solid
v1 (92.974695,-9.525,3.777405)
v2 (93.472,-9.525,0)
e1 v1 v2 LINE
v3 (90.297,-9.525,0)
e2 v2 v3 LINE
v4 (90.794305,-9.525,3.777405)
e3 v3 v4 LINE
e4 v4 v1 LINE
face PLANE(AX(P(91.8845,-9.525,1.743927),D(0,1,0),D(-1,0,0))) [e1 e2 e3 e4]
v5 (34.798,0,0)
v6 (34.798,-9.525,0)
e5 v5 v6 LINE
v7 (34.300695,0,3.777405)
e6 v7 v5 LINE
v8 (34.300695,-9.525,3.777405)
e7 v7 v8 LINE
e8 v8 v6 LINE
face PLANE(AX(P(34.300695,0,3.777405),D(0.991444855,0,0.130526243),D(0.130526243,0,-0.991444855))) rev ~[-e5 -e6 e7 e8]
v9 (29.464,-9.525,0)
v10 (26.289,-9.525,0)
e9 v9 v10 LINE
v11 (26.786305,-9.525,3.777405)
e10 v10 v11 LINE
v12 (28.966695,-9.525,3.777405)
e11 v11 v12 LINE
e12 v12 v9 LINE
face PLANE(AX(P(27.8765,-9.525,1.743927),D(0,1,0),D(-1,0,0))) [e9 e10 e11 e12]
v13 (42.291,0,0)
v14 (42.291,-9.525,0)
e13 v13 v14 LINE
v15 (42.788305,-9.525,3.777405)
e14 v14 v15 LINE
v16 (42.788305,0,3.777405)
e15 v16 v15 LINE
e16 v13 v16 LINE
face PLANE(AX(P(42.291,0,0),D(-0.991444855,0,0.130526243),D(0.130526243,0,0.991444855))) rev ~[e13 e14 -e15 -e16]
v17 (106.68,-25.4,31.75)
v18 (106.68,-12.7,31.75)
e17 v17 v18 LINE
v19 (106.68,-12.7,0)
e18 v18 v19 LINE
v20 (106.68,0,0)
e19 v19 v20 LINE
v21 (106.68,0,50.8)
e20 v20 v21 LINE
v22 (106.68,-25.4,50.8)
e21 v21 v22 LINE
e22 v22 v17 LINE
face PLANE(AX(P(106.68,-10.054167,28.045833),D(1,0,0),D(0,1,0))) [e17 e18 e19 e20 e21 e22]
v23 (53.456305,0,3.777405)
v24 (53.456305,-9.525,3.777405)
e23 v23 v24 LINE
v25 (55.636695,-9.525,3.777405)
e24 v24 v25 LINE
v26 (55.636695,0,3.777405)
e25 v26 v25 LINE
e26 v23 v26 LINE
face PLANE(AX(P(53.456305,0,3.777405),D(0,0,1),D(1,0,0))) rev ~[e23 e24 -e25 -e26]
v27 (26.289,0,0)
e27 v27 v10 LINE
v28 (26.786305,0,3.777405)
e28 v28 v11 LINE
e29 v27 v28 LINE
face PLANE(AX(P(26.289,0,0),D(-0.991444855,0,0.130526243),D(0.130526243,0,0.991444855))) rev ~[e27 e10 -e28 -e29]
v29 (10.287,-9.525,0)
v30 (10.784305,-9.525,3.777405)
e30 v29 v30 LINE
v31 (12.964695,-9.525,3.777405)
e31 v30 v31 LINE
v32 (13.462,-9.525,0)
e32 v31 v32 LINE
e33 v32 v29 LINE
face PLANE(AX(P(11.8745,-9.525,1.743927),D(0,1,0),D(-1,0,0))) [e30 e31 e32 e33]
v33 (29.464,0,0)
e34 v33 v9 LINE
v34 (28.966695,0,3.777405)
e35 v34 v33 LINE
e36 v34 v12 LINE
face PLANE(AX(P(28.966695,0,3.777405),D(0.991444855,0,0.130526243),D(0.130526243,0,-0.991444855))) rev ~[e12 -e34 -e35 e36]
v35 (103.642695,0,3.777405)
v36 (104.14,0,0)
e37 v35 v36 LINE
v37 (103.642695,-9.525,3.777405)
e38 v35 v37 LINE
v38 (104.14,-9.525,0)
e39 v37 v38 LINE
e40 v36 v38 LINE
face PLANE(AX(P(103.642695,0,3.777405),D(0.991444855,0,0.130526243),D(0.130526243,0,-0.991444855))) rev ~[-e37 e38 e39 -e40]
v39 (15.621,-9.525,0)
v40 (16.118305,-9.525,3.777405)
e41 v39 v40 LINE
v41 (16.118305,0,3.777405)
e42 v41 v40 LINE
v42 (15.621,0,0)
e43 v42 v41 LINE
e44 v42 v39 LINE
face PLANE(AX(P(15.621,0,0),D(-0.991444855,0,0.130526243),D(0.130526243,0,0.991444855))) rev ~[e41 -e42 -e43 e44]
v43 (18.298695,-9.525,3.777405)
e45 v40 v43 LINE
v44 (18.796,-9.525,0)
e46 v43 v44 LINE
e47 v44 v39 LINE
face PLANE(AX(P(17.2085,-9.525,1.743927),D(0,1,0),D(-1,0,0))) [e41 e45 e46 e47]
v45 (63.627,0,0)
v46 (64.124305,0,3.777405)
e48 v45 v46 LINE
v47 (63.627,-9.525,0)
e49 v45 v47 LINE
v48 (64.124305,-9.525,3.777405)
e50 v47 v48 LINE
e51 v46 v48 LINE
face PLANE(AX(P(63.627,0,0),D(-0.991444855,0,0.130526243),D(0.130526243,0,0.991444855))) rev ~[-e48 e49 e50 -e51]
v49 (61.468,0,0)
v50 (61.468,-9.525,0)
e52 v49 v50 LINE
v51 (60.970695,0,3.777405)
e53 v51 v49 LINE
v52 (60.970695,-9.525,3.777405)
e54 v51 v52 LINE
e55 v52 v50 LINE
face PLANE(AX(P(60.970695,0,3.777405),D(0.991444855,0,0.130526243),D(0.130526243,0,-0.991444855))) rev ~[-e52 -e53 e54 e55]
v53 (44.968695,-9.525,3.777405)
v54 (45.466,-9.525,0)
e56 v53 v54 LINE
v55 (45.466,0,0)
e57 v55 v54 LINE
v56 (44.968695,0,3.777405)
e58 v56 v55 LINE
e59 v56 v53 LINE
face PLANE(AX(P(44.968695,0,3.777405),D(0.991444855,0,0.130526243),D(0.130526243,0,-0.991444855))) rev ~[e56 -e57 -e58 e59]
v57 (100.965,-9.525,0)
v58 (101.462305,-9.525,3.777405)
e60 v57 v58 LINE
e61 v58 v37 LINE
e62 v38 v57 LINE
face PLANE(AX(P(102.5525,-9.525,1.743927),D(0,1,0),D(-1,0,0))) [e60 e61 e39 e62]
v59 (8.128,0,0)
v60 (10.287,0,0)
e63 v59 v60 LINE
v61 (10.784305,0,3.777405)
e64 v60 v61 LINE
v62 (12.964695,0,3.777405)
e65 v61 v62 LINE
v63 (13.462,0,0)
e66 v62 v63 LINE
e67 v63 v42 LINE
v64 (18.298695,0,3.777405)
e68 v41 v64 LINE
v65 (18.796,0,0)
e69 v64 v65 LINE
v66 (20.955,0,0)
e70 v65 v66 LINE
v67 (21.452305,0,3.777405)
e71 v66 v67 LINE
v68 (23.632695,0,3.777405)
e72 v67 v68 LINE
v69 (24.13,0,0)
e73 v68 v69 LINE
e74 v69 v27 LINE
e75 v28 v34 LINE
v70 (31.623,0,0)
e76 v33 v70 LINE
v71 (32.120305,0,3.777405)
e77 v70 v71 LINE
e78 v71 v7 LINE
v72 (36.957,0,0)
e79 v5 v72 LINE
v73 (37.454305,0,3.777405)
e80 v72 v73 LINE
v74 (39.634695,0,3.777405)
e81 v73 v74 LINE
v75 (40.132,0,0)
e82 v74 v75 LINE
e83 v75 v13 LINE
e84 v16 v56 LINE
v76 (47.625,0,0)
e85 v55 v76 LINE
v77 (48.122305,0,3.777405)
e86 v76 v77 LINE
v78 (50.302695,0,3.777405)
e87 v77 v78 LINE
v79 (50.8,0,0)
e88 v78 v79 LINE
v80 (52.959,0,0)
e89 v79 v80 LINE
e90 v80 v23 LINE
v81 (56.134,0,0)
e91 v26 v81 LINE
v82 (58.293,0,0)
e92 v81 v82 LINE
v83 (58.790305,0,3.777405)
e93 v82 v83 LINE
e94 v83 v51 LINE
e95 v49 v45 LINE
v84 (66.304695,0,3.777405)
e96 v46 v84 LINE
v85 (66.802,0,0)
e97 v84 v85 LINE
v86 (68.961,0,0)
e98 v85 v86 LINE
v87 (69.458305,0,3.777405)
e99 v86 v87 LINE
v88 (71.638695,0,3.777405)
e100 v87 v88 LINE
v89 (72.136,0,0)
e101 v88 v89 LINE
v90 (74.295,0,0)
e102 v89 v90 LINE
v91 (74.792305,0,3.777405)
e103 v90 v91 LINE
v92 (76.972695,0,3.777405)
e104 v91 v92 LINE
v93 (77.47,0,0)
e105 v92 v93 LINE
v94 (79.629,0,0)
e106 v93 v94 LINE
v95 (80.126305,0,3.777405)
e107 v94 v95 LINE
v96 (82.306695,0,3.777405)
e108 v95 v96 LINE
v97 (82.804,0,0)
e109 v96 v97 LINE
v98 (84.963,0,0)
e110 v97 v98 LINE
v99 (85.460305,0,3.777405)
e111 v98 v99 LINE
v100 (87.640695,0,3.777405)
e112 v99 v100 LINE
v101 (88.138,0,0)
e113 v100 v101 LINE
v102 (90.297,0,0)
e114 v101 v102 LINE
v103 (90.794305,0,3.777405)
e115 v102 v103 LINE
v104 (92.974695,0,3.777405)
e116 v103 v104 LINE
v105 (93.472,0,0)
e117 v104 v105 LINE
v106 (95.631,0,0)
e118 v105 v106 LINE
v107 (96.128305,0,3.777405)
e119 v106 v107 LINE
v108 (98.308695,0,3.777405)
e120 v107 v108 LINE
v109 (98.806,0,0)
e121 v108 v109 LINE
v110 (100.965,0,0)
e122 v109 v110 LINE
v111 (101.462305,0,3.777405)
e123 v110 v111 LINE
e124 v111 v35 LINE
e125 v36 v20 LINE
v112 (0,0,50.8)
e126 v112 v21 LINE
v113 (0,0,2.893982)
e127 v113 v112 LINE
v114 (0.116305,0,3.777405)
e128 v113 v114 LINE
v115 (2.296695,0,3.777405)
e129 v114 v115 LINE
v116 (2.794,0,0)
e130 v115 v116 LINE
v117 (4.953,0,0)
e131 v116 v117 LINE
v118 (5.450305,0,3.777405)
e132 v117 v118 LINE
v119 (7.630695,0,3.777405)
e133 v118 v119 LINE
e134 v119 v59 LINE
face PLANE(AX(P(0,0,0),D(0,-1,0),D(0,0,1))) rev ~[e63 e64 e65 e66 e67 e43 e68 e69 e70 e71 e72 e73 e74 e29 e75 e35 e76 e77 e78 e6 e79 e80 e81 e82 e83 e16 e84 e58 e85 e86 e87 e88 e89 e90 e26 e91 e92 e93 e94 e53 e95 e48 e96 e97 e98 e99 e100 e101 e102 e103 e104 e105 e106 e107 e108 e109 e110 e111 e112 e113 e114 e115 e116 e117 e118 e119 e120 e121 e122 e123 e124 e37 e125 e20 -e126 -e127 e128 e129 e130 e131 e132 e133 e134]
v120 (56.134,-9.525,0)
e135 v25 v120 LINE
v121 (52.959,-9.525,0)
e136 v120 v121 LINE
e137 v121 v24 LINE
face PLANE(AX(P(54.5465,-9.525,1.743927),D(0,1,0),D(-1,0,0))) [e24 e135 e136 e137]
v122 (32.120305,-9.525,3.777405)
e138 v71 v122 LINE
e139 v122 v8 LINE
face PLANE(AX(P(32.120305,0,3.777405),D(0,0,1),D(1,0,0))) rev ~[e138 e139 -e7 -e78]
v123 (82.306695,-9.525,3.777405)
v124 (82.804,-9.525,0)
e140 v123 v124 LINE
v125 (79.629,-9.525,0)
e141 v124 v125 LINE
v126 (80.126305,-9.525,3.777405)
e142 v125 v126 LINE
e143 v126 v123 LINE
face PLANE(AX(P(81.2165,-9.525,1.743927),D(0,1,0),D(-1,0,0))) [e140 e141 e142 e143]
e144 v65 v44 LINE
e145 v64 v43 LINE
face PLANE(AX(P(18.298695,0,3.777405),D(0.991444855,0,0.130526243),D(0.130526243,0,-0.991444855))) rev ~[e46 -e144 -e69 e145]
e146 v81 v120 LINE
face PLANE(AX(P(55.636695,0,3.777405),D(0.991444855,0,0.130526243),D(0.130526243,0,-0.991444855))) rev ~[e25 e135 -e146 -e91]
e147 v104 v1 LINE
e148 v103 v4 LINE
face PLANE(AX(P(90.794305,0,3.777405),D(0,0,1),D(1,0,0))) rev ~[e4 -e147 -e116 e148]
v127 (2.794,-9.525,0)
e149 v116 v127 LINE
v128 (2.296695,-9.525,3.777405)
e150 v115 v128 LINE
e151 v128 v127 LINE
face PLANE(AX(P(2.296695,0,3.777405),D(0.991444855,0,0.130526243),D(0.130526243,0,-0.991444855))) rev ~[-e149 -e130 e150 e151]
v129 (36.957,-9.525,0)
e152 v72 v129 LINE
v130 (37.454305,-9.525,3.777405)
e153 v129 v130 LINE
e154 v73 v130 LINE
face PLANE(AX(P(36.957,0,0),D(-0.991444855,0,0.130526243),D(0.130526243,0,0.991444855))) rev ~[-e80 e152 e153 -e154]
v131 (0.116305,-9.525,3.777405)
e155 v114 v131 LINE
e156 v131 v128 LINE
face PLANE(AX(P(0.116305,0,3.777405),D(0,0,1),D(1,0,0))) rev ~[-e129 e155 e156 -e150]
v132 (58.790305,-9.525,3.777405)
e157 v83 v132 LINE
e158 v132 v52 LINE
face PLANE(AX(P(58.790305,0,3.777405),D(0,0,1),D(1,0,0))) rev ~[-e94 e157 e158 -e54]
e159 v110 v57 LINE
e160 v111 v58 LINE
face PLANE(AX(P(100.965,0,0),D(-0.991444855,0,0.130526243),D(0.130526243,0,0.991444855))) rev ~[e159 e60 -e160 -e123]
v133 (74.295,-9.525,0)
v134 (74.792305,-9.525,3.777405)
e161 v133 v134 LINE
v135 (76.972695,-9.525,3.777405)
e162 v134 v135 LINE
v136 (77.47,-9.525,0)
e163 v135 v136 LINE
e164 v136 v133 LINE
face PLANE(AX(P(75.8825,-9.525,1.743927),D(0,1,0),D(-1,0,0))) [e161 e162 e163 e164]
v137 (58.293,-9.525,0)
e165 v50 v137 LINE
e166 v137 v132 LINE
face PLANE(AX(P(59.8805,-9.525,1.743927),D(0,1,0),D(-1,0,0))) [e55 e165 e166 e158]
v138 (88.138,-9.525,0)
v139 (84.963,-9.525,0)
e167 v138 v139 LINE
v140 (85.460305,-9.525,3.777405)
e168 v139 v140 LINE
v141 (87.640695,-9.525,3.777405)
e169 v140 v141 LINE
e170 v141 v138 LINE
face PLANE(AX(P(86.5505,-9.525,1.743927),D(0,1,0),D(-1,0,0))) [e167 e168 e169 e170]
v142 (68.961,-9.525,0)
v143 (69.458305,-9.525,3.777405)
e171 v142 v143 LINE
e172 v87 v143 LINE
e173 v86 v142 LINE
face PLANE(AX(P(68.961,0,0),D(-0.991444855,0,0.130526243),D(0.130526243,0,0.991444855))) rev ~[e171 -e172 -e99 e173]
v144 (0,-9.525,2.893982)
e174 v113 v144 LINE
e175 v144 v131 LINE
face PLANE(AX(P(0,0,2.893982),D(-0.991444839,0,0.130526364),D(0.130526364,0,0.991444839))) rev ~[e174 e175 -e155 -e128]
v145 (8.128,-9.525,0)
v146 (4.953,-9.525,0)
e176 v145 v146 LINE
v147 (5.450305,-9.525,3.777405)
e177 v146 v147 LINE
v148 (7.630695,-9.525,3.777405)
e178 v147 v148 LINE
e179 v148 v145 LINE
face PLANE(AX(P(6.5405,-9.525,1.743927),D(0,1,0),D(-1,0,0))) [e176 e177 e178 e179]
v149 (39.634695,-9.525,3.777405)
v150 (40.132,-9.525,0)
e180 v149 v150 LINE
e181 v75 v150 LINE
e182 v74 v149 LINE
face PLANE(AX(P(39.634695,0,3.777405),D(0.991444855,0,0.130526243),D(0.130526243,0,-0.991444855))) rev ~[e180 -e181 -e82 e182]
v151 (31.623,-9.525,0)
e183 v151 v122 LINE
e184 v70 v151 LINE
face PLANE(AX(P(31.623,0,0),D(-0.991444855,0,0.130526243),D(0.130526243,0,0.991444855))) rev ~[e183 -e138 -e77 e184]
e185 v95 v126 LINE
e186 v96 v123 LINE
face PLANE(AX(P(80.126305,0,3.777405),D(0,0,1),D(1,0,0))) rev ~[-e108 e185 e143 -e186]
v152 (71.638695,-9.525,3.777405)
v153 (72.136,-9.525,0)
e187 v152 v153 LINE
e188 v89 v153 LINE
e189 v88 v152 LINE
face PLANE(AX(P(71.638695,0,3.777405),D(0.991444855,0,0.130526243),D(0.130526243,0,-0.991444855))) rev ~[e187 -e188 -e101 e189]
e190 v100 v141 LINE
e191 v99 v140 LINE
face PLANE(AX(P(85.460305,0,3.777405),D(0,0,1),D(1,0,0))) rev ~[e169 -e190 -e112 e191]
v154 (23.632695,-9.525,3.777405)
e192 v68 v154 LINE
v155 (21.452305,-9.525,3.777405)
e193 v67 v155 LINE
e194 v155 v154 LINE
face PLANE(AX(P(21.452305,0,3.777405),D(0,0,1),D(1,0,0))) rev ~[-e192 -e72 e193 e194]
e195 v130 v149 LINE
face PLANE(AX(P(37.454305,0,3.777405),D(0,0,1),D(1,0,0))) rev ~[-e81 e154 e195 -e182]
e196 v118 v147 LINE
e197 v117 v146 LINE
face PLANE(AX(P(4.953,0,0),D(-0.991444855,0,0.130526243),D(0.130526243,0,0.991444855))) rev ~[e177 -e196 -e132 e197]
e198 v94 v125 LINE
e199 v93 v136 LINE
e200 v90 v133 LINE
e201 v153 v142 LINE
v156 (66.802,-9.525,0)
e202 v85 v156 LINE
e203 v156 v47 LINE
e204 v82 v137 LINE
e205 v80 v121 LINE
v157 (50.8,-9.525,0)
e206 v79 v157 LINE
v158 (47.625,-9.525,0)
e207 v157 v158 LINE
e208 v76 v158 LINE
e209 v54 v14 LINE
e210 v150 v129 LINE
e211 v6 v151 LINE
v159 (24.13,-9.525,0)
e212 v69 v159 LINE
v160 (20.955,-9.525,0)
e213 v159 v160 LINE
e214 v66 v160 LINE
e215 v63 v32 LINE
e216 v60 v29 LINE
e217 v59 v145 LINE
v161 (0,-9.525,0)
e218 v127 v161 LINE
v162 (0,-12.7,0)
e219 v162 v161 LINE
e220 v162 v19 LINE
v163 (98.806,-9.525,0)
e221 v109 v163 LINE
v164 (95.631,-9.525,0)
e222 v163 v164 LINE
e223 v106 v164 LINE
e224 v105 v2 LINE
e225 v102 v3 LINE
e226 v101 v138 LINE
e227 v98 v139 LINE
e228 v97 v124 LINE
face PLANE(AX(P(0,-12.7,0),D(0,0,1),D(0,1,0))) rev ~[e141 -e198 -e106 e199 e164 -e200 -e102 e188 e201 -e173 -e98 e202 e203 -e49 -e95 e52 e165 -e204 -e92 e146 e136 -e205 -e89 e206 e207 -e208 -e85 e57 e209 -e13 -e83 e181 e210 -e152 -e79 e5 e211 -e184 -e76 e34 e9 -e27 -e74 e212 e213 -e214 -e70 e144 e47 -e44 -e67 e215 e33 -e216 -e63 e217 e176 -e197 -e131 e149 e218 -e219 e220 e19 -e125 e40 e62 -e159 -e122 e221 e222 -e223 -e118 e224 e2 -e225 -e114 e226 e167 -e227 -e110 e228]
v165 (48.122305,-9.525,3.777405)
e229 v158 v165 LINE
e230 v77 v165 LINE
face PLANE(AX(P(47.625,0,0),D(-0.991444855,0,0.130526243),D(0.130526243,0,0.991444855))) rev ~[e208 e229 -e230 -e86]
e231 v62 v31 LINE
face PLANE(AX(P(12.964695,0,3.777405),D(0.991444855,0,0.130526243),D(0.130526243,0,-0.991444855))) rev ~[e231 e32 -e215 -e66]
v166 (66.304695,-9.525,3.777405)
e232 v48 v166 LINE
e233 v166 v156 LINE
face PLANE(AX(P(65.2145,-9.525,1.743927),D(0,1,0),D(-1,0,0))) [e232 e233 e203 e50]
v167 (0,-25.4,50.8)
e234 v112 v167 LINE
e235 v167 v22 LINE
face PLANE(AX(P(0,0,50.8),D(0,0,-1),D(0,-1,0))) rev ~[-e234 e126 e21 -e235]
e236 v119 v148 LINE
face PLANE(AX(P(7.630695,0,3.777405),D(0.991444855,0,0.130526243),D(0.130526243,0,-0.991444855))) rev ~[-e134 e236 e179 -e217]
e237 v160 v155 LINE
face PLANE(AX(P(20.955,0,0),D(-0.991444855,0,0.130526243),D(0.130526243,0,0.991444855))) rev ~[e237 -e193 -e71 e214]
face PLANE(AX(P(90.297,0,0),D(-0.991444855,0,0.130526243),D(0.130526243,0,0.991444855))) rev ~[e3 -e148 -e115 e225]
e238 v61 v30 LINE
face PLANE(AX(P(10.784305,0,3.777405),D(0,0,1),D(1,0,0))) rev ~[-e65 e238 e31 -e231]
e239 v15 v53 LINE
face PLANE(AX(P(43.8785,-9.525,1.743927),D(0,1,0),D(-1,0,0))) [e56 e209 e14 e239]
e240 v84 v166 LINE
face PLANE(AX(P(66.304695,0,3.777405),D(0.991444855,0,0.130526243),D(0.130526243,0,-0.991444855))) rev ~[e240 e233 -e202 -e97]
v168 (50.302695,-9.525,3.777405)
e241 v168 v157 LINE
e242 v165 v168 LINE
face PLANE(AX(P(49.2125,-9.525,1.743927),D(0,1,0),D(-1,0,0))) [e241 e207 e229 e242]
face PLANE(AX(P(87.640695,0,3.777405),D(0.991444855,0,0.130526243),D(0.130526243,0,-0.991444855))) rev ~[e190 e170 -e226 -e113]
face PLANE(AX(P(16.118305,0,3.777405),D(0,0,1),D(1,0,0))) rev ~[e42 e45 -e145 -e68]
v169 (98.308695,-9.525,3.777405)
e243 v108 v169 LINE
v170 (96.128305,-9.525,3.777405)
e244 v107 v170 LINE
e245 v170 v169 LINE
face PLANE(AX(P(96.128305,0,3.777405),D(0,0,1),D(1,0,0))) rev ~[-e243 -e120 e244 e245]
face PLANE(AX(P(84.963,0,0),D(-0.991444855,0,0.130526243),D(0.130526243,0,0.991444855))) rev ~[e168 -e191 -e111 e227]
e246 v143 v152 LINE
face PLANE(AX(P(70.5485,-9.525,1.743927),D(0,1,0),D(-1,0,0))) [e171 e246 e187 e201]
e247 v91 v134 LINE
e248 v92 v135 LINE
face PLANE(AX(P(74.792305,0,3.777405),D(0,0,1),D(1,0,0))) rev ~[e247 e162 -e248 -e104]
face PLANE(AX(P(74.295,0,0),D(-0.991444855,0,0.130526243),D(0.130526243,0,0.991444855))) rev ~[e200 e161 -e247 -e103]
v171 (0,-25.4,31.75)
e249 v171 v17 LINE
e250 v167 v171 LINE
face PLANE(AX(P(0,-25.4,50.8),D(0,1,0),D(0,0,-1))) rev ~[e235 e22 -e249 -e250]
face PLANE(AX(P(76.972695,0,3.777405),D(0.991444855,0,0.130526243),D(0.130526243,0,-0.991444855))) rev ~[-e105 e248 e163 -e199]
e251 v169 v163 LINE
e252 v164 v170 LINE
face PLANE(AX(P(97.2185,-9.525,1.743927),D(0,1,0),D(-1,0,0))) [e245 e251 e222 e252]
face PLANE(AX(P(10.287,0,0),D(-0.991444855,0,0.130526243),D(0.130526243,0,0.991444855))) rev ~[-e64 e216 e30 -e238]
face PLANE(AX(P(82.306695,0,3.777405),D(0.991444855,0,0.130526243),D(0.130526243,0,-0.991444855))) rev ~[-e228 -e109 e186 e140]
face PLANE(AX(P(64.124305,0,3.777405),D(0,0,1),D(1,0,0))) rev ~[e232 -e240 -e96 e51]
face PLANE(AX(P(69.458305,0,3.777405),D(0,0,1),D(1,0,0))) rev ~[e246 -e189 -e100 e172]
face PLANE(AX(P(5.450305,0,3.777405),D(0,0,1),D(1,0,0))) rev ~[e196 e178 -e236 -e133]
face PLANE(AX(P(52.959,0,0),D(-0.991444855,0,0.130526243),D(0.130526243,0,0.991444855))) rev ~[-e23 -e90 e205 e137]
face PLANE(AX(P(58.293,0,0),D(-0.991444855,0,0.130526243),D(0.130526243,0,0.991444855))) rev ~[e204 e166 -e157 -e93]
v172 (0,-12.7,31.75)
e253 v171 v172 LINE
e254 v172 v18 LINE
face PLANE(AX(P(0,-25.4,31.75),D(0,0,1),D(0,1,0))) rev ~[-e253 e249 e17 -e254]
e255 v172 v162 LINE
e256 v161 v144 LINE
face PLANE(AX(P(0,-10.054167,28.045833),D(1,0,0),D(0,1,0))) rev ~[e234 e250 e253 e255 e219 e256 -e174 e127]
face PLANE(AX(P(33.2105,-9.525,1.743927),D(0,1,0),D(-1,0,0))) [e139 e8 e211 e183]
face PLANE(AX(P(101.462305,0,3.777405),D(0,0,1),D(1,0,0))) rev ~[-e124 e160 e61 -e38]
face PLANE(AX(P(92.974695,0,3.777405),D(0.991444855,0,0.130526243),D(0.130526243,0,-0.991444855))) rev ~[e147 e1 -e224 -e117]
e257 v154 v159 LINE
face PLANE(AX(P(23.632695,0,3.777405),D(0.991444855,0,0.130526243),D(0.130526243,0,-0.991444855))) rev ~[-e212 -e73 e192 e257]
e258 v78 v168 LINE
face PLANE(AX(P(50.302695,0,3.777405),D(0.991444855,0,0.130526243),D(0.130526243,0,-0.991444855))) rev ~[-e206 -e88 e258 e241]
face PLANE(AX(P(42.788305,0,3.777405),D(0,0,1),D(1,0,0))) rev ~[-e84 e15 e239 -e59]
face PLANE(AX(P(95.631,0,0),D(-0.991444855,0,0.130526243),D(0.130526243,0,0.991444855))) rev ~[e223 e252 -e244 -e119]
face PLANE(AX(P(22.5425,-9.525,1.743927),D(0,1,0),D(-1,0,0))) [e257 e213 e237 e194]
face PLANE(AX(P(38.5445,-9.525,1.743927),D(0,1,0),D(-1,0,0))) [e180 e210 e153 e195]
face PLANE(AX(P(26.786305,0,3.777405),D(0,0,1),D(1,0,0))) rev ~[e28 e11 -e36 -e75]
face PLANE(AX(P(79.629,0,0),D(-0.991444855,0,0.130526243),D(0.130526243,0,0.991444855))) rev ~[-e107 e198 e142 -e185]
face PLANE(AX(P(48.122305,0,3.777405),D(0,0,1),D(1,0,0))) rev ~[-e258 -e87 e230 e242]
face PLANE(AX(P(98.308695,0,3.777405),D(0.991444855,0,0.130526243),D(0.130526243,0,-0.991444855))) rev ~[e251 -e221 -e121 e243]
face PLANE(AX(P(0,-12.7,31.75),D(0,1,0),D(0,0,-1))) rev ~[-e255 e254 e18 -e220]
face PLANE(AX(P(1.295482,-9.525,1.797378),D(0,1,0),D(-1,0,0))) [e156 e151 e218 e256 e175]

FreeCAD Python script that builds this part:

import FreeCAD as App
import Part
import Sketcher

V = App.Vector
Q = App.Units.Quantity

doc = App.newDocument("Part")
params = doc.addObject("Spreadsheet::Sheet", "Params")
for row, (alias, value) in enumerate([
    ("sketch1_width", "1 in"),
    ("sketch1_height", "2 in"),
    ("sketch1_height2", "0.75 in"),
    ("pad1_length", "4.2 in"),
    ("sketch2_width", "0.11 in"),
    ("sketch2_length", "0.15 in"),
    ("sketch2_width2", "0.125 in"),
    ("pocket1_length", "0.375 in"),
], start=1):
    params.set(f"A{row}", alias)
    params.set(f"B{row}", "=" + value)
    params.setAlias(f"B{row}", alias)

body = doc.addObject("PartDesign::Body", "Body")

sketch1 = body.newObject("Sketcher::SketchObject", "Sketch")
sketch1.AttachmentSupport = (doc.getObject("YZ_Plane"), [""])
sketch1.MapMode = "FlatFace"
sketch1.addGeometry(Part.LineSegment(V(-13, 0, 0), V(0, 0, 0)), False)
sketch1.addGeometry(Part.LineSegment(V(0, 0, 0), V(0, 51, 0)), False)
sketch1.addGeometry(Part.LineSegment(V(0, 51, 0), V(-25, 51, 0)), False)
sketch1.addGeometry(Part.LineSegment(V(-25, 51, 0), V(-25, 32, 0)), False)
sketch1.addGeometry(Part.LineSegment(V(-25, 32, 0), V(-13, 32, 0)), False)
sketch1.addGeometry(Part.LineSegment(V(-13, 32, 0), V(-13, 0, 0)), False)
sketch1.addConstraint(Sketcher.Constraint("Coincident", 0, 2, 1, 1))
sketch1.addConstraint(Sketcher.Constraint("Coincident", 1, 2, 2, 1))
sketch1.addConstraint(Sketcher.Constraint("Coincident", 2, 2, 3, 1))
sketch1.addConstraint(Sketcher.Constraint("Coincident", 3, 2, 4, 1))
sketch1.addConstraint(Sketcher.Constraint("Coincident", 4, 2, 5, 1))
sketch1.addConstraint(Sketcher.Constraint("Coincident", 5, 2, 0, 1))
sketch1.addConstraint(Sketcher.Constraint("Horizontal", 0))
sketch1.addConstraint(Sketcher.Constraint("Vertical", 1))
sketch1.addConstraint(Sketcher.Constraint("Horizontal", 2))
sketch1.addConstraint(Sketcher.Constraint("Vertical", 3))
sketch1.addConstraint(Sketcher.Constraint("Horizontal", 4))
sketch1.addConstraint(Sketcher.Constraint("Vertical", 5))
sketch1.addConstraint(Sketcher.Constraint("Coincident", 0, 2, -1, 1))
sketch1.addConstraint(Sketcher.Constraint("Equal", 0, 4))
sketch1.addConstraint(Sketcher.Constraint("DistanceX", 2, 2, 2, 1, Q("1 in")))
sketch1.addConstraint(Sketcher.Constraint("DistanceY", 1, 1, 1, 2, Q("2 in")))
sketch1.addConstraint(Sketcher.Constraint("DistanceY", 3, 2, 3, 1, Q("0.75 in")))
sketch1.setExpression("Constraints[14]", "Params.sketch1_width")
sketch1.setExpression("Constraints[15]", "Params.sketch1_height")
sketch1.setExpression("Constraints[16]", "Params.sketch1_height2")
pad1 = body.newObject("PartDesign::Pad", "Pad")
pad1.Profile = sketch1
pad1.setExpression("Length", "Params.pad1_length")

sketch2 = body.newObject("Sketcher::SketchObject", "Sketch001")
sketch2.AttachmentSupport = (doc.getObject("XZ_Plane"), [""])
sketch2.MapMode = "FlatFace"
sketch2.addGeometry(Part.LineSegment(V(103.6, 3.8, 0), V(104.1, 0, 0)), False)
sketch2.addGeometry(Part.LineSegment(V(104.1, 0, 0), V(101, 0, 0)), False)
sketch2.addGeometry(Part.LineSegment(V(101, 0, 0), V(101.5, 3.8, 0)), False)
sketch2.addGeometry(Part.LineSegment(V(101.5, 3.8, 0), V(103.6, 3.8, 0)), False)
sketch2.addGeometry(Part.LineSegment(V(98.3, 3.8, 0), V(98.8, 0, 0)), False)
sketch2.addGeometry(Part.LineSegment(V(98.8, 0, 0), V(95.6, 0, 0)), False)
sketch2.addGeometry(Part.LineSegment(V(95.6, 0, 0), V(96.1, 3.8, 0)), False)
sketch2.addGeometry(Part.LineSegment(V(96.1, 3.8, 0), V(98.3, 3.8, 0)), False)
sketch2.addGeometry(Part.LineSegment(V(93, 3.8, 0), V(93.5, 0, 0)), False)
sketch2.addGeometry(Part.LineSegment(V(93.5, 0, 0), V(90.3, 0, 0)), False)
sketch2.addGeometry(Part.LineSegment(V(90.3, 0, 0), V(90.8, 3.8, 0)), False)
sketch2.addGeometry(Part.LineSegment(V(90.8, 3.8, 0), V(93, 3.8, 0)), False)
sketch2.addGeometry(Part.LineSegment(V(87.6, 3.8, 0), V(88.1, 0, 0)), False)
sketch2.addGeometry(Part.LineSegment(V(88.1, 0, 0), V(85, 0, 0)), False)
sketch2.addGeometry(Part.LineSegment(V(85, 0, 0), V(85.5, 3.8, 0)), False)
sketch2.addGeometry(Part.LineSegment(V(85.5, 3.8, 0), V(87.6, 3.8, 0)), False)
sketch2.addGeometry(Part.LineSegment(V(82.3, 3.8, 0), V(82.8, 0, 0)), False)
sketch2.addGeometry(Part.LineSegment(V(82.8, 0, 0), V(79.6, 0, 0)), False)
sketch2.addGeometry(Part.LineSegment(V(79.6, 0, 0), V(80.1, 3.8, 0)), False)
sketch2.addGeometry(Part.LineSegment(V(80.1, 3.8, 0), V(82.3, 3.8, 0)), False)
sketch2.addGeometry(Part.LineSegment(V(77, 3.8, 0), V(77.5, 0, 0)), False)
sketch2.addGeometry(Part.LineSegment(V(77.5, 0, 0), V(74.3, 0, 0)), False)
sketch2.addGeometry(Part.LineSegment(V(74.3, 0, 0), V(74.8, 3.8, 0)), False)
sketch2.addGeometry(Part.LineSegment(V(74.8, 3.8, 0), V(77, 3.8, 0)), False)
sketch2.addGeometry(Part.LineSegment(V(71.6, 3.8, 0), V(72.1, 0, 0)), False)
sketch2.addGeometry(Part.LineSegment(V(72.1, 0, 0), V(69, 0, 0)), False)
sketch2.addGeometry(Part.LineSegment(V(69, 0, 0), V(69.5, 3.8, 0)), False)
sketch2.addGeometry(Part.LineSegment(V(69.5, 3.8, 0), V(71.6, 3.8, 0)), False)
sketch2.addGeometry(Part.LineSegment(V(66.3, 3.8, 0), V(66.8, 0, 0)), False)
sketch2.addGeometry(Part.LineSegment(V(66.8, 0, 0), V(63.6, 0, 0)), False)
sketch2.addGeometry(Part.LineSegment(V(63.6, 0, 0), V(64.1, 3.8, 0)), False)
sketch2.addGeometry(Part.LineSegment(V(64.1, 3.8, 0), V(66.3, 3.8, 0)), False)
sketch2.addGeometry(Part.LineSegment(V(61, 3.8, 0), V(61.5, 0, 0)), False)
sketch2.addGeometry(Part.LineSegment(V(61.5, 0, 0), V(58.3, 0, 0)), False)
sketch2.addGeometry(Part.LineSegment(V(58.3, 0, 0), V(58.8, 3.8, 0)), False)
sketch2.addGeometry(Part.LineSegment(V(58.8, 3.8, 0), V(61, 3.8, 0)), False)
sketch2.addGeometry(Part.LineSegment(V(55.6, 3.8, 0), V(56.1, 0, 0)), False)
sketch2.addGeometry(Part.LineSegment(V(56.1, 0, 0), V(53, 0, 0)), False)
sketch2.addGeometry(Part.LineSegment(V(53, 0, 0), V(53.5, 3.8, 0)), False)
sketch2.addGeometry(Part.LineSegment(V(53.5, 3.8, 0), V(55.6, 3.8, 0)), False)
sketch2.addGeometry(Part.LineSegment(V(50.3, 3.8, 0), V(50.8, 0, 0)), False)
sketch2.addGeometry(Part.LineSegment(V(50.8, 0, 0), V(47.6, 0, 0)), False)
sketch2.addGeometry(Part.LineSegment(V(47.6, 0, 0), V(48.1, 3.8, 0)), False)
sketch2.addGeometry(Part.LineSegment(V(48.1, 3.8, 0), V(50.3, 3.8, 0)), False)
sketch2.addGeometry(Part.LineSegment(V(45.5, 0, 0), V(42.3, 0, 0)), False)
sketch2.addGeometry(Part.LineSegment(V(42.3, 0, 0), V(42.8, 3.8, 0)), False)
sketch2.addGeometry(Part.LineSegment(V(42.8, 3.8, 0), V(45, 3.8, 0)), False)
sketch2.addGeometry(Part.LineSegment(V(45, 3.8, 0), V(45.5, 0, 0)), False)
sketch2.addGeometry(Part.LineSegment(V(40.1, 0, 0), V(37, 0, 0)), False)
sketch2.addGeometry(Part.LineSegment(V(37, 0, 0), V(37.5, 3.8, 0)), False)
sketch2.addGeometry(Part.LineSegment(V(37.5, 3.8, 0), V(39.6, 3.8, 0)), False)
sketch2.addGeometry(Part.LineSegment(V(39.6, 3.8, 0), V(40.1, 0, 0)), False)
sketch2.addGeometry(Part.LineSegment(V(18.8, 0, 0), V(15.6, 0, 0)), False)
sketch2.addGeometry(Part.LineSegment(V(15.6, 0, 0), V(16.1, 3.8, 0)), False)
sketch2.addGeometry(Part.LineSegment(V(16.1, 3.8, 0), V(18.3, 3.8, 0)), False)
sketch2.addGeometry(Part.LineSegment(V(18.3, 3.8, 0), V(18.8, 0, 0)), False)
sketch2.addGeometry(Part.LineSegment(V(24.1, 0, 0), V(21, 0, 0)), False)
sketch2.addGeometry(Part.LineSegment(V(21, 0, 0), V(21.5, 3.8, 0)), False)
sketch2.addGeometry(Part.LineSegment(V(21.5, 3.8, 0), V(23.6, 3.8, 0)), False)
sketch2.addGeometry(Part.LineSegment(V(23.6, 3.8, 0), V(24.1, 0, 0)), False)
sketch2.addGeometry(Part.LineSegment(V(29.5, 0, 0), V(26.3, 0, 0)), False)
sketch2.addGeometry(Part.LineSegment(V(26.3, 0, 0), V(26.8, 3.8, 0)), False)
sketch2.addGeometry(Part.LineSegment(V(26.8, 3.8, 0), V(29, 3.8, 0)), False)
sketch2.addGeometry(Part.LineSegment(V(29, 3.8, 0), V(29.5, 0, 0)), False)
sketch2.addGeometry(Part.LineSegment(V(34.8, 0, 0), V(31.6, 0, 0)), False)
sketch2.addGeometry(Part.LineSegment(V(31.6, 0, 0), V(32.1, 3.8, 0)), False)
sketch2.addGeometry(Part.LineSegment(V(32.1, 3.8, 0), V(34.3, 3.8, 0)), False)
sketch2.addGeometry(Part.LineSegment(V(34.3, 3.8, 0), V(34.8, 0, 0)), False)
sketch2.addGeometry(Part.LineSegment(V(13.5, 0, 0), V(10.3, 0, 0)), False)
sketch2.addGeometry(Part.LineSegment(V(10.3, 0, 0), V(10.8, 3.8, 0)), False)
sketch2.addGeometry(Part.LineSegment(V(10.8, 3.8, 0), V(13, 3.8, 0)), False)
sketch2.addGeometry(Part.LineSegment(V(13, 3.8, 0), V(13.5, 0, 0)), False)
sketch2.addGeometry(Part.LineSegment(V(8.1, 0, 0), V(5, 0, 0)), False)
sketch2.addGeometry(Part.LineSegment(V(5, 0, 0), V(5.5, 3.8, 0)), False)
sketch2.addGeometry(Part.LineSegment(V(5.5, 3.8, 0), V(7.6, 3.8, 0)), False)
sketch2.addGeometry(Part.LineSegment(V(7.6, 3.8, 0), V(8.1, 0, 0)), False)
sketch2.addGeometry(Part.LineSegment(V(0, 0, 0), V(0, 2.9, 0)), False)
sketch2.addGeometry(Part.LineSegment(V(0, 2.9, 0), V(0.1, 3.8, 0)), False)
sketch2.addGeometry(Part.LineSegment(V(0.1, 3.8, 0), V(2.3, 3.8, 0)), False)
sketch2.addGeometry(Part.LineSegment(V(2.3, 3.8, 0), V(2.8, 0, 0)), False)
sketch2.addGeometry(Part.LineSegment(V(2.8, 0, 0), V(0, 0, 0)), False)
sketch2.addConstraint(Sketcher.Constraint("Coincident", 0, 2, 1, 1))
sketch2.addConstraint(Sketcher.Constraint("Coincident", 1, 2, 2, 1))
sketch2.addConstraint(Sketcher.Constraint("Coincident", 2, 2, 3, 1))
sketch2.addConstraint(Sketcher.Constraint("Coincident", 3, 2, 0, 1))
sketch2.addConstraint(Sketcher.Constraint("Coincident", 4, 2, 5, 1))
sketch2.addConstraint(Sketcher.Constraint("Coincident", 5, 2, 6, 1))
sketch2.addConstraint(Sketcher.Constraint("Coincident", 6, 2, 7, 1))
sketch2.addConstraint(Sketcher.Constraint("Coincident", 7, 2, 4, 1))
sketch2.addConstraint(Sketcher.Constraint("Coincident", 8, 2, 9, 1))
sketch2.addConstraint(Sketcher.Constraint("Coincident", 9, 2, 10, 1))
sketch2.addConstraint(Sketcher.Constraint("Coincident", 10, 2, 11, 1))
sketch2.addConstraint(Sketcher.Constraint("Coincident", 11, 2, 8, 1))
sketch2.addConstraint(Sketcher.Constraint("Coincident", 12, 2, 13, 1))
sketch2.addConstraint(Sketcher.Constraint("Coincident", 13, 2, 14, 1))
sketch2.addConstraint(Sketcher.Constraint("Coincident", 14, 2, 15, 1))
sketch2.addConstraint(Sketcher.Constraint("Coincident", 15, 2, 12, 1))
sketch2.addConstraint(Sketcher.Constraint("Coincident", 16, 2, 17, 1))
sketch2.addConstraint(Sketcher.Constraint("Coincident", 17, 2, 18, 1))
sketch2.addConstraint(Sketcher.Constraint("Coincident", 18, 2, 19, 1))
sketch2.addConstraint(Sketcher.Constraint("Coincident", 19, 2, 16, 1))
sketch2.addConstraint(Sketcher.Constraint("Coincident", 20, 2, 21, 1))
sketch2.addConstraint(Sketcher.Constraint("Coincident", 21, 2, 22, 1))
sketch2.addConstraint(Sketcher.Constraint("Coincident", 22, 2, 23, 1))
sketch2.addConstraint(Sketcher.Constraint("Coincident", 23, 2, 20, 1))
sketch2.addConstraint(Sketcher.Constraint("Coincident", 24, 2, 25, 1))
sketch2.addConstraint(Sketcher.Constraint("Coincident", 25, 2, 26, 1))
sketch2.addConstraint(Sketcher.Constraint("Coincident", 26, 2, 27, 1))
sketch2.addConstraint(Sketcher.Constraint("Coincident", 27, 2, 24, 1))
sketch2.addConstraint(Sketcher.Constraint("Coincident", 28, 2, 29, 1))
sketch2.addConstraint(Sketcher.Constraint("Coincident", 29, 2, 30, 1))
sketch2.addConstraint(Sketcher.Constraint("Coincident", 30, 2, 31, 1))
sketch2.addConstraint(Sketcher.Constraint("Coincident", 31, 2, 28, 1))
sketch2.addConstraint(Sketcher.Constraint("Coincident", 32, 2, 33, 1))
sketch2.addConstraint(Sketcher.Constraint("Coincident", 33, 2, 34, 1))
sketch2.addConstraint(Sketcher.Constraint("Coincident", 34, 2, 35, 1))
sketch2.addConstraint(Sketcher.Constraint("Coincident", 35, 2, 32, 1))
sketch2.addConstraint(Sketcher.Constraint("Coincident", 36, 2, 37, 1))
sketch2.addConstraint(Sketcher.Constraint("Coincident", 37, 2, 38, 1))
sketch2.addConstraint(Sketcher.Constraint("Coincident", 38, 2, 39, 1))
sketch2.addConstraint(Sketcher.Constraint("Coincident", 39, 2, 36, 1))
sketch2.addConstraint(Sketcher.Constraint("Coincident", 40, 2, 41, 1))
sketch2.addConstraint(Sketcher.Constraint("Coincident", 41, 2, 42, 1))
sketch2.addConstraint(Sketcher.Constraint("Coincident", 42, 2, 43, 1))
sketch2.addConstraint(Sketcher.Constraint("Coincident", 43, 2, 40, 1))
sketch2.addConstraint(Sketcher.Constraint("Coincident", 44, 2, 45, 1))
sketch2.addConstraint(Sketcher.Constraint("Coincident", 45, 2, 46, 1))
sketch2.addConstraint(Sketcher.Constraint("Coincident", 46, 2, 47, 1))
sketch2.addConstraint(Sketcher.Constraint("Coincident", 47, 2, 44, 1))
sketch2.addConstraint(Sketcher.Constraint("Coincident", 48, 2, 49, 1))
sketch2.addConstraint(Sketcher.Constraint("Coincident", 49, 2, 50, 1))
sketch2.addConstraint(Sketcher.Constraint("Coincident", 50, 2, 51, 1))
sketch2.addConstraint(Sketcher.Constraint("Coincident", 51, 2, 48, 1))
sketch2.addConstraint(Sketcher.Constraint("Coincident", 52, 2, 53, 1))
sketch2.addConstraint(Sketcher.Constraint("Coincident", 53, 2, 54, 1))
sketch2.addConstraint(Sketcher.Constraint("Coincident", 54, 2, 55, 1))
sketch2.addConstraint(Sketcher.Constraint("Coincident", 55, 2, 52, 1))
sketch2.addConstraint(Sketcher.Constraint("Coincident", 56, 2, 57, 1))
sketch2.addConstraint(Sketcher.Constraint("Coincident", 57, 2, 58, 1))
sketch2.addConstraint(Sketcher.Constraint("Coincident", 58, 2, 59, 1))
sketch2.addConstraint(Sketcher.Constraint("Coincident", 59, 2, 56, 1))
sketch2.addConstraint(Sketcher.Constraint("Coincident", 60, 2, 61, 1))
sketch2.addConstraint(Sketcher.Constraint("Coincident", 61, 2, 62, 1))
sketch2.addConstraint(Sketcher.Constraint("Coincident", 62, 2, 63, 1))
sketch2.addConstraint(Sketcher.Constraint("Coincident", 63, 2, 60, 1))
sketch2.addConstraint(Sketcher.Constraint("Coincident", 64, 2, 65, 1))
sketch2.addConstraint(Sketcher.Constraint("Coincident", 65, 2, 66, 1))
sketch2.addConstraint(Sketcher.Constraint("Coincident", 66, 2, 67, 1))
sketch2.addConstraint(Sketcher.Constraint("Coincident", 67, 2, 64, 1))
sketch2.addConstraint(Sketcher.Constraint("Coincident", 68, 2, 69, 1))
sketch2.addConstraint(Sketcher.Constraint("Coincident", 69, 2, 70, 1))
sketch2.addConstraint(Sketcher.Constraint("Coincident", 70, 2, 71, 1))
sketch2.addConstraint(Sketcher.Constraint("Coincident", 71, 2, 68, 1))
sketch2.addConstraint(Sketcher.Constraint("Coincident", 72, 2, 73, 1))
sketch2.addConstraint(Sketcher.Constraint("Coincident", 73, 2, 74, 1))
sketch2.addConstraint(Sketcher.Constraint("Coincident", 74, 2, 75, 1))
sketch2.addConstraint(Sketcher.Constraint("Coincident", 75, 2, 72, 1))
sketch2.addConstraint(Sketcher.Constraint("Coincident", 76, 2, 77, 1))
sketch2.addConstraint(Sketcher.Constraint("Coincident", 77, 2, 78, 1))
sketch2.addConstraint(Sketcher.Constraint("Coincident", 78, 2, 79, 1))
sketch2.addConstraint(Sketcher.Constraint("Coincident", 79, 2, 80, 1))
sketch2.addConstraint(Sketcher.Constraint("Coincident", 80, 2, 76, 1))
sketch2.addConstraint(Sketcher.Constraint("Horizontal", 1))
sketch2.addConstraint(Sketcher.Constraint("Horizontal", 3))
sketch2.addConstraint(Sketcher.Constraint("Horizontal", 5))
sketch2.addConstraint(Sketcher.Constraint("Horizontal", 7))
sketch2.addConstraint(Sketcher.Constraint("Horizontal", 9))
sketch2.addConstraint(Sketcher.Constraint("Horizontal", 11))
sketch2.addConstraint(Sketcher.Constraint("Horizontal", 13))
sketch2.addConstraint(Sketcher.Constraint("Horizontal", 15))
sketch2.addConstraint(Sketcher.Constraint("Horizontal", 17))
sketch2.addConstraint(Sketcher.Constraint("Horizontal", 19))
sketch2.addConstraint(Sketcher.Constraint("Horizontal", 21))
sketch2.addConstraint(Sketcher.Constraint("Horizontal", 23))
sketch2.addConstraint(Sketcher.Constraint("Horizontal", 25))
sketch2.addConstraint(Sketcher.Constraint("Horizontal", 27))
sketch2.addConstraint(Sketcher.Constraint("Horizontal", 29))
sketch2.addConstraint(Sketcher.Constraint("Horizontal", 31))
sketch2.addConstraint(Sketcher.Constraint("Horizontal", 33))
sketch2.addConstraint(Sketcher.Constraint("Horizontal", 35))
sketch2.addConstraint(Sketcher.Constraint("Horizontal", 37))
sketch2.addConstraint(Sketcher.Constraint("Horizontal", 39))
sketch2.addConstraint(Sketcher.Constraint("Horizontal", 41))
sketch2.addConstraint(Sketcher.Constraint("Horizontal", 43))
sketch2.addConstraint(Sketcher.Constraint("Horizontal", 44))
sketch2.addConstraint(Sketcher.Constraint("Horizontal", 46))
sketch2.addConstraint(Sketcher.Constraint("Horizontal", 48))
sketch2.addConstraint(Sketcher.Constraint("Horizontal", 50))
sketch2.addConstraint(Sketcher.Constraint("Horizontal", 52))
sketch2.addConstraint(Sketcher.Constraint("Horizontal", 54))
sketch2.addConstraint(Sketcher.Constraint("Horizontal", 56))
sketch2.addConstraint(Sketcher.Constraint("Horizontal", 58))
sketch2.addConstraint(Sketcher.Constraint("Horizontal", 60))
sketch2.addConstraint(Sketcher.Constraint("Horizontal", 62))
sketch2.addConstraint(Sketcher.Constraint("Horizontal", 64))
sketch2.addConstraint(Sketcher.Constraint("Horizontal", 66))
sketch2.addConstraint(Sketcher.Constraint("Horizontal", 68))
sketch2.addConstraint(Sketcher.Constraint("Horizontal", 70))
sketch2.addConstraint(Sketcher.Constraint("Horizontal", 72))
sketch2.addConstraint(Sketcher.Constraint("Horizontal", 74))
sketch2.addConstraint(Sketcher.Constraint("Vertical", 76))
sketch2.addConstraint(Sketcher.Constraint("Horizontal", 78))
sketch2.addConstraint(Sketcher.Constraint("Horizontal", 80))
sketch2.addConstraint(Sketcher.Constraint("Coincident", 80, 2, -1, 1))
sketch2.addConstraint(Sketcher.Constraint("PointOnObject", 0, 2, -1))
sketch2.addConstraint(Sketcher.Constraint("PointOnObject", 4, 2, -1))
sketch2.addConstraint(Sketcher.Constraint("PointOnObject", 8, 2, -1))
sketch2.addConstraint(Sketcher.Constraint("PointOnObject", 12, 2, -1))
sketch2.addConstraint(Sketcher.Constraint("PointOnObject", 16, 2, -1))
sketch2.addConstraint(Sketcher.Constraint("PointOnObject", 20, 2, -1))
sketch2.addConstraint(Sketcher.Constraint("PointOnObject", 24, 2, -1))
sketch2.addConstraint(Sketcher.Constraint("PointOnObject", 28, 2, -1))
sketch2.addConstraint(Sketcher.Constraint("PointOnObject", 32, 2, -1))
sketch2.addConstraint(Sketcher.Constraint("PointOnObject", 36, 2, -1))
sketch2.addConstraint(Sketcher.Constraint("PointOnObject", 40, 2, -1))
sketch2.addConstraint(Sketcher.Constraint("PointOnObject", 44, 2, -1))
sketch2.addConstraint(Sketcher.Constraint("PointOnObject", 48, 2, -1))
sketch2.addConstraint(Sketcher.Constraint("PointOnObject", 52, 2, -1))
sketch2.addConstraint(Sketcher.Constraint("PointOnObject", 56, 2, -1))
sketch2.addConstraint(Sketcher.Constraint("PointOnObject", 60, 2, -1))
sketch2.addConstraint(Sketcher.Constraint("PointOnObject", 64, 2, -1))
sketch2.addConstraint(Sketcher.Constraint("PointOnObject", 68, 2, -1))
sketch2.addConstraint(Sketcher.Constraint("PointOnObject", 72, 2, -1))
sketch2.addConstraint(Sketcher.Constraint("Parallel", 0, 4))
sketch2.addConstraint(Sketcher.Constraint("Parallel", 2, 6))
sketch2.addConstraint(Sketcher.Constraint("Parallel", 4, 8))
sketch2.addConstraint(Sketcher.Constraint("Parallel", 6, 10))
sketch2.addConstraint(Sketcher.Constraint("Parallel", 8, 12))
sketch2.addConstraint(Sketcher.Constraint("Parallel", 10, 14))
sketch2.addConstraint(Sketcher.Constraint("Parallel", 12, 16))
sketch2.addConstraint(Sketcher.Constraint("Parallel", 14, 18))
sketch2.addConstraint(Sketcher.Constraint("Parallel", 16, 20))
sketch2.addConstraint(Sketcher.Constraint("Parallel", 18, 22))
sketch2.addConstraint(Sketcher.Constraint("Parallel", 20, 24))
sketch2.addConstraint(Sketcher.Constraint("Parallel", 22, 26))
sketch2.addConstraint(Sketcher.Constraint("Parallel", 24, 28))
sketch2.addConstraint(Sketcher.Constraint("Parallel", 26, 30))
sketch2.addConstraint(Sketcher.Constraint("Parallel", 28, 32))
sketch2.addConstraint(Sketcher.Constraint("Parallel", 30, 34))
sketch2.addConstraint(Sketcher.Constraint("Parallel", 32, 36))
sketch2.addConstraint(Sketcher.Constraint("Parallel", 34, 38))
sketch2.addConstraint(Sketcher.Constraint("Parallel", 36, 40))
sketch2.addConstraint(Sketcher.Constraint("Parallel", 38, 42))
sketch2.addConstraint(Sketcher.Constraint("Parallel", 42, 45))
sketch2.addConstraint(Sketcher.Constraint("Parallel", 40, 47))
sketch2.addConstraint(Sketcher.Constraint("Parallel", 45, 49))
sketch2.addConstraint(Sketcher.Constraint("Parallel", 47, 51))
sketch2.addConstraint(Sketcher.Constraint("Parallel", 49, 53))
sketch2.addConstraint(Sketcher.Constraint("Parallel", 51, 55))
sketch2.addConstraint(Sketcher.Constraint("Parallel", 53, 57))
sketch2.addConstraint(Sketcher.Constraint("Parallel", 55, 59))
sketch2.addConstraint(Sketcher.Constraint("Parallel", 57, 61))
sketch2.addConstraint(Sketcher.Constraint("Parallel", 59, 63))
sketch2.addConstraint(Sketcher.Constraint("Parallel", 61, 65))
sketch2.addConstraint(Sketcher.Constraint("Parallel", 63, 67))
sketch2.addConstraint(Sketcher.Constraint("Parallel", 65, 69))
sketch2.addConstraint(Sketcher.Constraint("Parallel", 67, 71))
sketch2.addConstraint(Sketcher.Constraint("Parallel", 69, 73))
sketch2.addConstraint(Sketcher.Constraint("Parallel", 71, 75))
sketch2.addConstraint(Sketcher.Constraint("Parallel", 73, 77))
sketch2.addConstraint(Sketcher.Constraint("Parallel", 75, 79))
sketch2.addConstraint(Sketcher.Constraint("Horizontal", 3, 2, 6, 2))
sketch2.addConstraint(Sketcher.Constraint("Horizontal", 7, 2, 10, 2))
sketch2.addConstraint(Sketcher.Constraint("Horizontal", 11, 2, 14, 2))
sketch2.addConstraint(Sketcher.Constraint("Horizontal", 15, 2, 18, 2))
sketch2.addConstraint(Sketcher.Constraint("Horizontal", 19, 2, 22, 2))
sketch2.addConstraint(Sketcher.Constraint("Horizontal", 23, 2, 26, 2))
sketch2.addConstraint(Sketcher.Constraint("Horizontal", 27, 2, 30, 2))
sketch2.addConstraint(Sketcher.Constraint("Horizontal", 31, 2, 34, 2))
sketch2.addConstraint(Sketcher.Constraint("Horizontal", 35, 2, 38, 2))
sketch2.addConstraint(Sketcher.Constraint("Horizontal", 39, 2, 42, 2))
sketch2.addConstraint(Sketcher.Constraint("Horizontal", 43, 2, 45, 2))
sketch2.addConstraint(Sketcher.Constraint("Horizontal", 46, 2, 49, 2))
sketch2.addConstraint(Sketcher.Constraint("Horizontal", 50, 2, 53, 2))
sketch2.addConstraint(Sketcher.Constraint("Horizontal", 54, 2, 57, 2))
sketch2.addConstraint(Sketcher.Constraint("Horizontal", 58, 2, 61, 2))
sketch2.addConstraint(Sketcher.Constraint("Horizontal", 62, 2, 65, 2))
sketch2.addConstraint(Sketcher.Constraint("Horizontal", 66, 2, 69, 2))
sketch2.addConstraint(Sketcher.Constraint("Horizontal", 70, 2, 73, 2))
sketch2.addConstraint(Sketcher.Constraint("Horizontal", 74, 2, 77, 2))
sketch2.addConstraint(Sketcher.Constraint("Equal", 1, 5))
sketch2.addConstraint(Sketcher.Constraint("Equal", 5, 9))
sketch2.addConstraint(Sketcher.Constraint("Equal", 9, 13))
sketch2.addConstraint(Sketcher.Constraint("Equal", 13, 17))
sketch2.addConstraint(Sketcher.Constraint("Equal", 17, 21))
sketch2.addConstraint(Sketcher.Constraint("Equal", 21, 25))
sketch2.addConstraint(Sketcher.Constraint("Equal", 25, 29))
sketch2.addConstraint(Sketcher.Constraint("Equal", 29, 33))
sketch2.addConstraint(Sketcher.Constraint("Equal", 33, 37))
sketch2.addConstraint(Sketcher.Constraint("Equal", 37, 41))
sketch2.addConstraint(Sketcher.Constraint("Equal", 41, 44))
sketch2.addConstraint(Sketcher.Constraint("Equal", 44, 48))
sketch2.addConstraint(Sketcher.Constraint("Equal", 48, 52))
sketch2.addConstraint(Sketcher.Constraint("Equal", 52, 56))
sketch2.addConstraint(Sketcher.Constraint("Equal", 56, 60))
sketch2.addConstraint(Sketcher.Constraint("Equal", 60, 64))
sketch2.addConstraint(Sketcher.Constraint("Equal", 64, 68))
sketch2.addConstraint(Sketcher.Constraint("Equal", 68, 72))
sketch2.addConstraint(Sketcher.Constraint("Equal", 74, 78))
sketch2.addConstraint(Sketcher.Constraint("Equal", 0, 2))
sketch2.addConstraint(Sketcher.Constraint("DistanceX", -1, 1, 40, 2, Q("2 in")))
sketch2.addConstraint(Sketcher.Constraint("DistanceX", 80, 2, 80, 1, Q("0.11 in")))
sketch2.addConstraint(Sketcher.Constraint("DistanceX", -1, 1, 0, 2, Q("4.1 in")))
sketch2.addConstraint(Sketcher.Constraint("Angle", 0, Q("-82.499997 deg")))
sketch2.addConstraint(Sketcher.Constraint("Distance", 0, Q("0.15 in")))
sketch2.addConstraint(Sketcher.Constraint("DistanceX", 1, 2, 1, 1, Q("0.125 in")))
sketch2.addConstraint(Sketcher.Constraint("DistanceX", -1, 1, 4, 2, Q("3.89 in")))
sketch2.addConstraint(Sketcher.Constraint("DistanceX", -1, 1, 8, 2, Q("3.68 in")))
sketch2.addConstraint(Sketcher.Constraint("DistanceX", -1, 1, 12, 2, Q("3.47 in")))
sketch2.addConstraint(Sketcher.Constraint("DistanceX", -1, 1, 16, 2, Q("3.26 in")))
sketch2.addConstraint(Sketcher.Constraint("DistanceX", -1, 1, 20, 2, Q("3.05 in")))
sketch2.addConstraint(Sketcher.Constraint("DistanceX", -1, 1, 24, 2, Q("2.84 in")))
sketch2.addConstraint(Sketcher.Constraint("DistanceX", -1, 1, 28, 2, Q("2.63 in")))
sketch2.addConstraint(Sketcher.Constraint("DistanceX", -1, 1, 32, 2, Q("2.42 in")))
sketch2.addConstraint(Sketcher.Constraint("DistanceX", -1, 1, 36, 2, Q("2.21 in")))
sketch2.addConstraint(Sketcher.Constraint("DistanceX", -1, 1, 47, 2, Q("1.79 in")))
sketch2.addConstraint(Sketcher.Constraint("DistanceX", -1, 1, 51, 2, Q("1.58 in")))
sketch2.addConstraint(Sketcher.Constraint("DistanceX", -1, 1, 55, 2, Q("0.74 in")))
sketch2.addConstraint(Sketcher.Constraint("DistanceX", -1, 1, 59, 2, Q("0.95 in")))
sketch2.addConstraint(Sketcher.Constraint("DistanceX", -1, 1, 63, 2, Q("1.16 in")))
sketch2.addConstraint(Sketcher.Constraint("DistanceX", -1, 1, 67, 2, Q("1.37 in")))
sketch2.addConstraint(Sketcher.Constraint("DistanceX", -1, 1, 71, 2, Q("0.53 in")))
sketch2.addConstraint(Sketcher.Constraint("DistanceX", -1, 1, 75, 2, Q("0.32 in")))
sketch2.setExpression("Constraints[220]", "Params.sketch2_width")
sketch2.setExpression("Constraints[223]", "Params.sketch2_length")
sketch2.setExpression("Constraints[224]", "Params.sketch2_width2")
pocket1 = body.newObject("PartDesign::Pocket", "Pocket")
pocket1.Profile = sketch2
pocket1.setExpression("Length", "Params.pocket1_length")
pocket1.Reversed = True

doc.recompute()
